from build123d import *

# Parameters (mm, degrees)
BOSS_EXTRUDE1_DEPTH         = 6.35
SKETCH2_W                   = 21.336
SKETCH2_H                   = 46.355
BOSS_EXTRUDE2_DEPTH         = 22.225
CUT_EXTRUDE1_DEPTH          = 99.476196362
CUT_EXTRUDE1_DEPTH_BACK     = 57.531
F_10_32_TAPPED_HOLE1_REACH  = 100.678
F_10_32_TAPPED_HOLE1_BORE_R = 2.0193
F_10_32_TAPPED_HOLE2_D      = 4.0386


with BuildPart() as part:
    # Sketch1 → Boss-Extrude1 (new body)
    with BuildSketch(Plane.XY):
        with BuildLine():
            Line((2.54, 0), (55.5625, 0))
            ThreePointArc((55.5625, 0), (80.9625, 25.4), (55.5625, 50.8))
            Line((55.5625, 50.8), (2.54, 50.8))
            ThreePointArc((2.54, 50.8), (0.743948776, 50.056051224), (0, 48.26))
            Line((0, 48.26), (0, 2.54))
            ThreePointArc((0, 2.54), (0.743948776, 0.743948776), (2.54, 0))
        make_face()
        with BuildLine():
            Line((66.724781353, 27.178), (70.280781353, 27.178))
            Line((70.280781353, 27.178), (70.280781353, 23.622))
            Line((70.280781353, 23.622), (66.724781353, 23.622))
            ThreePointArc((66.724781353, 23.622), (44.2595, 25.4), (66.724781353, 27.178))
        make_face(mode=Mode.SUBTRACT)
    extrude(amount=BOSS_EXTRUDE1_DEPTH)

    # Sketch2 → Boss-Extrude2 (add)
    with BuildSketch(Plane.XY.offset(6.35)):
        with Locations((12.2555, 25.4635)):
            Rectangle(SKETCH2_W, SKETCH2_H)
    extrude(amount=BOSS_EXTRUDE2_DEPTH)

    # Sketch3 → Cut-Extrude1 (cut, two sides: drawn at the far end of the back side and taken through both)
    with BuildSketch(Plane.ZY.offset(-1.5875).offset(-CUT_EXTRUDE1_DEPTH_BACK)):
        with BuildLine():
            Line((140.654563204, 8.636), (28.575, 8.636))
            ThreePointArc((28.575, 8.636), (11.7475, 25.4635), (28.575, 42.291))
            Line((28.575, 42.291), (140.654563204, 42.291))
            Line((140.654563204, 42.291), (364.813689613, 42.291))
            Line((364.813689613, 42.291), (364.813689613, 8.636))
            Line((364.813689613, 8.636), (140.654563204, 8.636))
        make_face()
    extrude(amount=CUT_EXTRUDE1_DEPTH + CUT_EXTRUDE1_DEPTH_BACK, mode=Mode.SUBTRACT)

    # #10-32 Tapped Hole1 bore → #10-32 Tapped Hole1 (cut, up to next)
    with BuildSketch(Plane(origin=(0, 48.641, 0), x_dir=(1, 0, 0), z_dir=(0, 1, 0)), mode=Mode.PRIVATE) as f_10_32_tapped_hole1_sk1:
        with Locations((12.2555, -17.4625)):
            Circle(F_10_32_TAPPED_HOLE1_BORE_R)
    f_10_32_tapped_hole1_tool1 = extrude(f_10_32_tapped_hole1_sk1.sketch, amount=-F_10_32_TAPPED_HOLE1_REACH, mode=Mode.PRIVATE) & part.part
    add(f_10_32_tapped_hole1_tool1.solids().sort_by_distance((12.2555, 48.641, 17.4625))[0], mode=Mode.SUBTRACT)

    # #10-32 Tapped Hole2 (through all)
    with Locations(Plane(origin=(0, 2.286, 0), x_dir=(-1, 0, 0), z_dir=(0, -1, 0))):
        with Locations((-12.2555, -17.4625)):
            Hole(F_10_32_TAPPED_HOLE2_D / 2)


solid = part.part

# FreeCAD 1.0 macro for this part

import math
import FreeCAD as App
import Part
import Sketcher
from FreeCAD import Vector
Q = App.Units.Quantity


def add_polygon(sketch, points):
    """Adds a closed chain of lines whose ends are joined by coincident constraints."""
    first, n = sketch.GeometryCount, len(points)
    for a, b in zip(points, points[1:] + points[:1]):
        sketch.addGeometry(Part.LineSegment(App.Vector(*a, 0), App.Vector(*b, 0)), False)
    for i in range(n):
        sketch.addConstraint(Sketcher.Constraint("Coincident", first + i, 2, first + (i + 1) % n, 1))

doc = App.newDocument("Part")
params = doc.addObject("Spreadsheet::Sheet", "Params")
for row, (alias, value) in enumerate([
    ("sketch1_radius", "1 in"),
    ("sketch1_radius2", "0.1 in"),
    ("sketch1_radius3", "0.445 in"),
    ("sketch1_width", "0.14 in"),
    ("pad1_length", "0.25 in"),
    ("sketch2_width", "0.84 in"),
    ("sketch2_height", "1.825 in"),
    ("pad2_length", "0.875 in"),
    ("sketch4_diameter", "0.159 in"),
    ("sketch5_diameter", "0.159 in"),
    ("hole_diameter", "0.159 in"),
], start=1):
    params.set(f"A{row}", alias)
    params.set(f"B{row}", "=" + value)
    params.setAlias(f"B{row}", alias)

body = doc.addObject("PartDesign::Body", "Body")

# Sketch on XY plane
sketch1 = body.newObject("Sketcher::SketchObject", "Sketch")
sketch1.AttachmentSupport = (doc.getObject("XY_Plane"), [""])
sketch1.MapMode = "FlatFace"
sketch1.addGeometry([
    Part.LineSegment(Vector(2.54, 0, 0), Vector(55.5625, 0, 0)),  # 0
    Part.ArcOfCircle(Part.Circle(Vector(55.5625, 25.4, 0), Vector(0, 0, 1), 25.4), math.radians(-90), math.radians(90)),  # 1
    Part.LineSegment(Vector(55.5625, 50.8, 0), Vector(2.54, 50.8, 0)),  # 2
    Part.ArcOfCircle(Part.Circle(Vector(2.54, 48.26, 0), Vector(0, 0, 1), 2.54), math.radians(90), math.radians(180)),  # 3
    Part.LineSegment(Vector(0, 48.26, 0), Vector(0, 2.54, 0)),  # 4
    Part.ArcOfCircle(Part.Circle(Vector(2.54, 2.54, 0), Vector(0, 0, 1), 2.54), math.radians(-180), math.radians(-90)),  # 5
    Part.ArcOfCircle(Part.Circle(Vector(55.5625, 25.4, 0), Vector(0, 0, 1), 11.303), math.radians(9.050409), math.radians(350.949591)),  # 6
    Part.LineSegment(Vector(66.724781, 27.178, 0), Vector(70.280781, 27.178, 0)),  # 7
    Part.LineSegment(Vector(70.280781, 27.178, 0), Vector(70.280781, 23.622, 0)),  # 8
    Part.LineSegment(Vector(70.280781, 23.622, 0), Vector(66.724781, 23.622, 0)),  # 9
], False)
sketch1.addConstraint([
    Sketcher.Constraint("Tangent", 0, 2, 1, 1),
    Sketcher.Constraint("Tangent", 1, 2, 2, 1),
    Sketcher.Constraint("Tangent", 2, 2, 3, 1),
    Sketcher.Constraint("Tangent", 3, 2, 4, 1),
    Sketcher.Constraint("Tangent", 4, 2, 5, 1),
    Sketcher.Constraint("Tangent", 5, 2, 0, 1),
    Sketcher.Constraint("Coincident", 6, 1, 7, 1),
    Sketcher.Constraint("Coincident", 7, 2, 8, 1),
    Sketcher.Constraint("Coincident", 8, 2, 9, 1),
    Sketcher.Constraint("Coincident", 9, 2, 6, 2),
    Sketcher.Constraint("Horizontal", 0),
    Sketcher.Constraint("Horizontal", 2),
    Sketcher.Constraint("Vertical", 4),
    Sketcher.Constraint("Horizontal", 7),
    Sketcher.Constraint("Vertical", 8),
    Sketcher.Constraint("Horizontal", 9),
    Sketcher.Constraint("Coincident", 6, 3, 1, 3),
    Sketcher.Constraint("Equal", 3, 5),
    Sketcher.Constraint("PointOnObject", 0, 2, -1),
    Sketcher.Constraint("PointOnObject", 3, 2, -2),
    Sketcher.Constraint("Vertical", 6, 1, 9, 2),
    Sketcher.Constraint("Equal", 9, 8),
    Sketcher.Constraint("Radius", 1, Q("1 in")),
    Sketcher.Constraint("Radius", 3, Q("0.1 in")),
    Sketcher.Constraint("Radius", 6, Q("0.445 in")),
    Sketcher.Constraint("DistanceX", 7, 1, 7, 2, Q("0.14 in")),
    Sketcher.Constraint("DistanceX", 0, 1, 0, 2, Q("2.0875 in")),
])
sketch1.setExpression("Constraints[22]", "Params.sketch1_radius")
sketch1.setExpression("Constraints[23]", "Params.sketch1_radius2")
sketch1.setExpression("Constraints[24]", "Params.sketch1_radius3")
sketch1.setExpression("Constraints[25]", "Params.sketch1_width")
pad1 = body.newObject("PartDesign::Pad", "Pad")
pad1.Profile = sketch1
pad1.setExpression("Length", "Params.pad1_length")

# Sketch on XY plane
sketch2 = body.newObject("Sketcher::SketchObject", "Sketch001")
sketch2.AttachmentSupport = (doc.getObject("XY_Plane"), [""])
sketch2.MapMode = "FlatFace"
sketch2.AttachmentOffset = App.Placement(Vector(0, 0, 0.25 * 25.4), App.Rotation())
add_polygon(sketch2, [(1.5875, 48.641), (1.5875, 2.286), (22.9235, 2.286), (22.9235, 48.641)])  # lines 0-3
sketch2.addConstraint([
    Sketcher.Constraint("Vertical", 0),
    Sketcher.Constraint("Horizontal", 1),
    Sketcher.Constraint("Vertical", 2),
    Sketcher.Constraint("Horizontal", 3),
    Sketcher.Constraint("DistanceX", 1, 1, 1, 2, Q("0.84 in")),
    Sketcher.Constraint("DistanceY", 0, 2, 0, 1, Q("1.825 in")),
    Sketcher.Constraint("DistanceY", -1, 1, 0, 2, Q("0.09 in")),
    Sketcher.Constraint("DistanceX", -1, 1, 0, 2, Q("0.0625 in")),
])
sketch2.setExpression("Constraints[8]", "Params.sketch2_width")
sketch2.setExpression("Constraints[9]", "Params.sketch2_height")
pad2 = body.newObject("PartDesign::Pad", "Pad001")
pad2.Profile = sketch2
pad2.setExpression("Length", "Params.pad2_length")

# Sketch on YZ plane
sketch3 = body.newObject("Sketcher::SketchObject", "Sketch002")
sketch3.AttachmentSupport = (doc.getObject("YZ_Plane"), [""])
sketch3.MapMode = "FlatFace"
sketch3.AttachmentOffset = App.Placement(Vector(0, 0, 0.0625 * 25.4), App.Rotation())
sketch3.addGeometry([
    Part.ArcOfCircle(Part.Circle(Vector(25.4635, 28.575, 0), Vector(0, 0, 1), 16.8275), math.radians(180), math.radians(360)),
    Part.LineSegment(Vector(8.636, 28.575, 0), Vector(8.636, 364.81369, 0)),
    Part.LineSegment(Vector(8.636, 364.81369, 0), Vector(42.291, 364.81369, 0)),
    Part.LineSegment(Vector(42.291, 364.81369, 0), Vector(42.291, 28.575, 0)),
], False)
sketch3.addConstraint([
    Sketcher.Constraint("Tangent", 0, 1, 1, 1),
    Sketcher.Constraint("Coincident", 1, 2, 2, 1),
    Sketcher.Constraint("Coincident", 2, 2, 3, 1),
    Sketcher.Constraint("Tangent", 3, 2, 0, 2),
    Sketcher.Constraint("Vertical", 1),
    Sketcher.Constraint("Horizontal", 2),
    Sketcher.Constraint("Vertical", 3),
    Sketcher.Constraint("Radius", 0, Q("0.6625 in")),
    Sketcher.Constraint("DistanceX", -1, 1, 0, 1, Q("0.34 in")),
    Sketcher.Constraint("DistanceY", -1, 1, 0, 3, Q("1.125 in")),
    Sketcher.Constraint("DistanceY", 1, 1, 1, 2, Q("336.23869 mm")),
])
pocket1 = body.newObject("PartDesign::Pocket", "Pocket")
pocket1.Profile = sketch3
pocket1.Type = "ThroughAll"
pocket1.Midplane = True

# Sketch on XZ plane
sketch4 = body.newObject("Sketcher::SketchObject", "Sketch003")
sketch4.AttachmentSupport = (doc.getObject("XZ_Plane"), [""])
sketch4.MapMode = "FlatFace"
sketch4.AttachmentOffset = App.Placement(Vector(0, 0, -1.915 * 25.4), App.Rotation())
sketch4.addGeometry(Part.Circle(Vector(12.2555, 17.4625, 0), Vector(0, 0, 1), 2.0193), False)
sketch4.addConstraint([
    Sketcher.Constraint("Diameter", 0, Q("0.159 in")),
    Sketcher.Constraint("DistanceY", -1, 1, 0, 3, Q("0.6875 in")),
    Sketcher.Constraint("DistanceX", -1, 1, 0, 3, Q("0.4825 in")),
])
sketch4.setExpression("Constraints[0]", "Params.sketch4_diameter")
pocket2 = body.newObject("PartDesign::Pocket", "Pocket001")
pocket2.Profile = sketch4
pocket2.Type = "UpToFirst"
pocket2.Reversed = True

# Sketch on XZ plane
sketch5 = body.newObject("Sketcher::SketchObject", "Sketch004")
sketch5.AttachmentSupport = (doc.getObject("XZ_Plane"), [""])
sketch5.MapMode = "FlatFace"
sketch5.AttachmentOffset = App.Placement(Vector(0, 0, -0.09 * 25.4), App.Rotation())
sketch5.addGeometry(Part.Circle(Vector(12.2555, 17.4625, 0), Vector(0, 0, 1), 2.0193), False)
sketch5.addConstraint([
    Sketcher.Constraint("Diameter", 0, Q("0.159 in")),
    Sketcher.Constraint("DistanceY", -1, 1, 0, 3, Q("0.6875 in")),
    Sketcher.Constraint("DistanceX", -1, 1, 0, 3, Q("0.4825 in")),
])
sketch5.setExpression("Constraints[0]", "Params.sketch5_diameter")
doc.recompute()
hole = body.newObject("PartDesign::Hole", "Hole")
hole.Profile = sketch5
hole.ThreadType = "None"
hole.setExpression("Diameter", "Params.hole_diameter")
hole.DepthType = "ThroughAll"

doc.recompute()
